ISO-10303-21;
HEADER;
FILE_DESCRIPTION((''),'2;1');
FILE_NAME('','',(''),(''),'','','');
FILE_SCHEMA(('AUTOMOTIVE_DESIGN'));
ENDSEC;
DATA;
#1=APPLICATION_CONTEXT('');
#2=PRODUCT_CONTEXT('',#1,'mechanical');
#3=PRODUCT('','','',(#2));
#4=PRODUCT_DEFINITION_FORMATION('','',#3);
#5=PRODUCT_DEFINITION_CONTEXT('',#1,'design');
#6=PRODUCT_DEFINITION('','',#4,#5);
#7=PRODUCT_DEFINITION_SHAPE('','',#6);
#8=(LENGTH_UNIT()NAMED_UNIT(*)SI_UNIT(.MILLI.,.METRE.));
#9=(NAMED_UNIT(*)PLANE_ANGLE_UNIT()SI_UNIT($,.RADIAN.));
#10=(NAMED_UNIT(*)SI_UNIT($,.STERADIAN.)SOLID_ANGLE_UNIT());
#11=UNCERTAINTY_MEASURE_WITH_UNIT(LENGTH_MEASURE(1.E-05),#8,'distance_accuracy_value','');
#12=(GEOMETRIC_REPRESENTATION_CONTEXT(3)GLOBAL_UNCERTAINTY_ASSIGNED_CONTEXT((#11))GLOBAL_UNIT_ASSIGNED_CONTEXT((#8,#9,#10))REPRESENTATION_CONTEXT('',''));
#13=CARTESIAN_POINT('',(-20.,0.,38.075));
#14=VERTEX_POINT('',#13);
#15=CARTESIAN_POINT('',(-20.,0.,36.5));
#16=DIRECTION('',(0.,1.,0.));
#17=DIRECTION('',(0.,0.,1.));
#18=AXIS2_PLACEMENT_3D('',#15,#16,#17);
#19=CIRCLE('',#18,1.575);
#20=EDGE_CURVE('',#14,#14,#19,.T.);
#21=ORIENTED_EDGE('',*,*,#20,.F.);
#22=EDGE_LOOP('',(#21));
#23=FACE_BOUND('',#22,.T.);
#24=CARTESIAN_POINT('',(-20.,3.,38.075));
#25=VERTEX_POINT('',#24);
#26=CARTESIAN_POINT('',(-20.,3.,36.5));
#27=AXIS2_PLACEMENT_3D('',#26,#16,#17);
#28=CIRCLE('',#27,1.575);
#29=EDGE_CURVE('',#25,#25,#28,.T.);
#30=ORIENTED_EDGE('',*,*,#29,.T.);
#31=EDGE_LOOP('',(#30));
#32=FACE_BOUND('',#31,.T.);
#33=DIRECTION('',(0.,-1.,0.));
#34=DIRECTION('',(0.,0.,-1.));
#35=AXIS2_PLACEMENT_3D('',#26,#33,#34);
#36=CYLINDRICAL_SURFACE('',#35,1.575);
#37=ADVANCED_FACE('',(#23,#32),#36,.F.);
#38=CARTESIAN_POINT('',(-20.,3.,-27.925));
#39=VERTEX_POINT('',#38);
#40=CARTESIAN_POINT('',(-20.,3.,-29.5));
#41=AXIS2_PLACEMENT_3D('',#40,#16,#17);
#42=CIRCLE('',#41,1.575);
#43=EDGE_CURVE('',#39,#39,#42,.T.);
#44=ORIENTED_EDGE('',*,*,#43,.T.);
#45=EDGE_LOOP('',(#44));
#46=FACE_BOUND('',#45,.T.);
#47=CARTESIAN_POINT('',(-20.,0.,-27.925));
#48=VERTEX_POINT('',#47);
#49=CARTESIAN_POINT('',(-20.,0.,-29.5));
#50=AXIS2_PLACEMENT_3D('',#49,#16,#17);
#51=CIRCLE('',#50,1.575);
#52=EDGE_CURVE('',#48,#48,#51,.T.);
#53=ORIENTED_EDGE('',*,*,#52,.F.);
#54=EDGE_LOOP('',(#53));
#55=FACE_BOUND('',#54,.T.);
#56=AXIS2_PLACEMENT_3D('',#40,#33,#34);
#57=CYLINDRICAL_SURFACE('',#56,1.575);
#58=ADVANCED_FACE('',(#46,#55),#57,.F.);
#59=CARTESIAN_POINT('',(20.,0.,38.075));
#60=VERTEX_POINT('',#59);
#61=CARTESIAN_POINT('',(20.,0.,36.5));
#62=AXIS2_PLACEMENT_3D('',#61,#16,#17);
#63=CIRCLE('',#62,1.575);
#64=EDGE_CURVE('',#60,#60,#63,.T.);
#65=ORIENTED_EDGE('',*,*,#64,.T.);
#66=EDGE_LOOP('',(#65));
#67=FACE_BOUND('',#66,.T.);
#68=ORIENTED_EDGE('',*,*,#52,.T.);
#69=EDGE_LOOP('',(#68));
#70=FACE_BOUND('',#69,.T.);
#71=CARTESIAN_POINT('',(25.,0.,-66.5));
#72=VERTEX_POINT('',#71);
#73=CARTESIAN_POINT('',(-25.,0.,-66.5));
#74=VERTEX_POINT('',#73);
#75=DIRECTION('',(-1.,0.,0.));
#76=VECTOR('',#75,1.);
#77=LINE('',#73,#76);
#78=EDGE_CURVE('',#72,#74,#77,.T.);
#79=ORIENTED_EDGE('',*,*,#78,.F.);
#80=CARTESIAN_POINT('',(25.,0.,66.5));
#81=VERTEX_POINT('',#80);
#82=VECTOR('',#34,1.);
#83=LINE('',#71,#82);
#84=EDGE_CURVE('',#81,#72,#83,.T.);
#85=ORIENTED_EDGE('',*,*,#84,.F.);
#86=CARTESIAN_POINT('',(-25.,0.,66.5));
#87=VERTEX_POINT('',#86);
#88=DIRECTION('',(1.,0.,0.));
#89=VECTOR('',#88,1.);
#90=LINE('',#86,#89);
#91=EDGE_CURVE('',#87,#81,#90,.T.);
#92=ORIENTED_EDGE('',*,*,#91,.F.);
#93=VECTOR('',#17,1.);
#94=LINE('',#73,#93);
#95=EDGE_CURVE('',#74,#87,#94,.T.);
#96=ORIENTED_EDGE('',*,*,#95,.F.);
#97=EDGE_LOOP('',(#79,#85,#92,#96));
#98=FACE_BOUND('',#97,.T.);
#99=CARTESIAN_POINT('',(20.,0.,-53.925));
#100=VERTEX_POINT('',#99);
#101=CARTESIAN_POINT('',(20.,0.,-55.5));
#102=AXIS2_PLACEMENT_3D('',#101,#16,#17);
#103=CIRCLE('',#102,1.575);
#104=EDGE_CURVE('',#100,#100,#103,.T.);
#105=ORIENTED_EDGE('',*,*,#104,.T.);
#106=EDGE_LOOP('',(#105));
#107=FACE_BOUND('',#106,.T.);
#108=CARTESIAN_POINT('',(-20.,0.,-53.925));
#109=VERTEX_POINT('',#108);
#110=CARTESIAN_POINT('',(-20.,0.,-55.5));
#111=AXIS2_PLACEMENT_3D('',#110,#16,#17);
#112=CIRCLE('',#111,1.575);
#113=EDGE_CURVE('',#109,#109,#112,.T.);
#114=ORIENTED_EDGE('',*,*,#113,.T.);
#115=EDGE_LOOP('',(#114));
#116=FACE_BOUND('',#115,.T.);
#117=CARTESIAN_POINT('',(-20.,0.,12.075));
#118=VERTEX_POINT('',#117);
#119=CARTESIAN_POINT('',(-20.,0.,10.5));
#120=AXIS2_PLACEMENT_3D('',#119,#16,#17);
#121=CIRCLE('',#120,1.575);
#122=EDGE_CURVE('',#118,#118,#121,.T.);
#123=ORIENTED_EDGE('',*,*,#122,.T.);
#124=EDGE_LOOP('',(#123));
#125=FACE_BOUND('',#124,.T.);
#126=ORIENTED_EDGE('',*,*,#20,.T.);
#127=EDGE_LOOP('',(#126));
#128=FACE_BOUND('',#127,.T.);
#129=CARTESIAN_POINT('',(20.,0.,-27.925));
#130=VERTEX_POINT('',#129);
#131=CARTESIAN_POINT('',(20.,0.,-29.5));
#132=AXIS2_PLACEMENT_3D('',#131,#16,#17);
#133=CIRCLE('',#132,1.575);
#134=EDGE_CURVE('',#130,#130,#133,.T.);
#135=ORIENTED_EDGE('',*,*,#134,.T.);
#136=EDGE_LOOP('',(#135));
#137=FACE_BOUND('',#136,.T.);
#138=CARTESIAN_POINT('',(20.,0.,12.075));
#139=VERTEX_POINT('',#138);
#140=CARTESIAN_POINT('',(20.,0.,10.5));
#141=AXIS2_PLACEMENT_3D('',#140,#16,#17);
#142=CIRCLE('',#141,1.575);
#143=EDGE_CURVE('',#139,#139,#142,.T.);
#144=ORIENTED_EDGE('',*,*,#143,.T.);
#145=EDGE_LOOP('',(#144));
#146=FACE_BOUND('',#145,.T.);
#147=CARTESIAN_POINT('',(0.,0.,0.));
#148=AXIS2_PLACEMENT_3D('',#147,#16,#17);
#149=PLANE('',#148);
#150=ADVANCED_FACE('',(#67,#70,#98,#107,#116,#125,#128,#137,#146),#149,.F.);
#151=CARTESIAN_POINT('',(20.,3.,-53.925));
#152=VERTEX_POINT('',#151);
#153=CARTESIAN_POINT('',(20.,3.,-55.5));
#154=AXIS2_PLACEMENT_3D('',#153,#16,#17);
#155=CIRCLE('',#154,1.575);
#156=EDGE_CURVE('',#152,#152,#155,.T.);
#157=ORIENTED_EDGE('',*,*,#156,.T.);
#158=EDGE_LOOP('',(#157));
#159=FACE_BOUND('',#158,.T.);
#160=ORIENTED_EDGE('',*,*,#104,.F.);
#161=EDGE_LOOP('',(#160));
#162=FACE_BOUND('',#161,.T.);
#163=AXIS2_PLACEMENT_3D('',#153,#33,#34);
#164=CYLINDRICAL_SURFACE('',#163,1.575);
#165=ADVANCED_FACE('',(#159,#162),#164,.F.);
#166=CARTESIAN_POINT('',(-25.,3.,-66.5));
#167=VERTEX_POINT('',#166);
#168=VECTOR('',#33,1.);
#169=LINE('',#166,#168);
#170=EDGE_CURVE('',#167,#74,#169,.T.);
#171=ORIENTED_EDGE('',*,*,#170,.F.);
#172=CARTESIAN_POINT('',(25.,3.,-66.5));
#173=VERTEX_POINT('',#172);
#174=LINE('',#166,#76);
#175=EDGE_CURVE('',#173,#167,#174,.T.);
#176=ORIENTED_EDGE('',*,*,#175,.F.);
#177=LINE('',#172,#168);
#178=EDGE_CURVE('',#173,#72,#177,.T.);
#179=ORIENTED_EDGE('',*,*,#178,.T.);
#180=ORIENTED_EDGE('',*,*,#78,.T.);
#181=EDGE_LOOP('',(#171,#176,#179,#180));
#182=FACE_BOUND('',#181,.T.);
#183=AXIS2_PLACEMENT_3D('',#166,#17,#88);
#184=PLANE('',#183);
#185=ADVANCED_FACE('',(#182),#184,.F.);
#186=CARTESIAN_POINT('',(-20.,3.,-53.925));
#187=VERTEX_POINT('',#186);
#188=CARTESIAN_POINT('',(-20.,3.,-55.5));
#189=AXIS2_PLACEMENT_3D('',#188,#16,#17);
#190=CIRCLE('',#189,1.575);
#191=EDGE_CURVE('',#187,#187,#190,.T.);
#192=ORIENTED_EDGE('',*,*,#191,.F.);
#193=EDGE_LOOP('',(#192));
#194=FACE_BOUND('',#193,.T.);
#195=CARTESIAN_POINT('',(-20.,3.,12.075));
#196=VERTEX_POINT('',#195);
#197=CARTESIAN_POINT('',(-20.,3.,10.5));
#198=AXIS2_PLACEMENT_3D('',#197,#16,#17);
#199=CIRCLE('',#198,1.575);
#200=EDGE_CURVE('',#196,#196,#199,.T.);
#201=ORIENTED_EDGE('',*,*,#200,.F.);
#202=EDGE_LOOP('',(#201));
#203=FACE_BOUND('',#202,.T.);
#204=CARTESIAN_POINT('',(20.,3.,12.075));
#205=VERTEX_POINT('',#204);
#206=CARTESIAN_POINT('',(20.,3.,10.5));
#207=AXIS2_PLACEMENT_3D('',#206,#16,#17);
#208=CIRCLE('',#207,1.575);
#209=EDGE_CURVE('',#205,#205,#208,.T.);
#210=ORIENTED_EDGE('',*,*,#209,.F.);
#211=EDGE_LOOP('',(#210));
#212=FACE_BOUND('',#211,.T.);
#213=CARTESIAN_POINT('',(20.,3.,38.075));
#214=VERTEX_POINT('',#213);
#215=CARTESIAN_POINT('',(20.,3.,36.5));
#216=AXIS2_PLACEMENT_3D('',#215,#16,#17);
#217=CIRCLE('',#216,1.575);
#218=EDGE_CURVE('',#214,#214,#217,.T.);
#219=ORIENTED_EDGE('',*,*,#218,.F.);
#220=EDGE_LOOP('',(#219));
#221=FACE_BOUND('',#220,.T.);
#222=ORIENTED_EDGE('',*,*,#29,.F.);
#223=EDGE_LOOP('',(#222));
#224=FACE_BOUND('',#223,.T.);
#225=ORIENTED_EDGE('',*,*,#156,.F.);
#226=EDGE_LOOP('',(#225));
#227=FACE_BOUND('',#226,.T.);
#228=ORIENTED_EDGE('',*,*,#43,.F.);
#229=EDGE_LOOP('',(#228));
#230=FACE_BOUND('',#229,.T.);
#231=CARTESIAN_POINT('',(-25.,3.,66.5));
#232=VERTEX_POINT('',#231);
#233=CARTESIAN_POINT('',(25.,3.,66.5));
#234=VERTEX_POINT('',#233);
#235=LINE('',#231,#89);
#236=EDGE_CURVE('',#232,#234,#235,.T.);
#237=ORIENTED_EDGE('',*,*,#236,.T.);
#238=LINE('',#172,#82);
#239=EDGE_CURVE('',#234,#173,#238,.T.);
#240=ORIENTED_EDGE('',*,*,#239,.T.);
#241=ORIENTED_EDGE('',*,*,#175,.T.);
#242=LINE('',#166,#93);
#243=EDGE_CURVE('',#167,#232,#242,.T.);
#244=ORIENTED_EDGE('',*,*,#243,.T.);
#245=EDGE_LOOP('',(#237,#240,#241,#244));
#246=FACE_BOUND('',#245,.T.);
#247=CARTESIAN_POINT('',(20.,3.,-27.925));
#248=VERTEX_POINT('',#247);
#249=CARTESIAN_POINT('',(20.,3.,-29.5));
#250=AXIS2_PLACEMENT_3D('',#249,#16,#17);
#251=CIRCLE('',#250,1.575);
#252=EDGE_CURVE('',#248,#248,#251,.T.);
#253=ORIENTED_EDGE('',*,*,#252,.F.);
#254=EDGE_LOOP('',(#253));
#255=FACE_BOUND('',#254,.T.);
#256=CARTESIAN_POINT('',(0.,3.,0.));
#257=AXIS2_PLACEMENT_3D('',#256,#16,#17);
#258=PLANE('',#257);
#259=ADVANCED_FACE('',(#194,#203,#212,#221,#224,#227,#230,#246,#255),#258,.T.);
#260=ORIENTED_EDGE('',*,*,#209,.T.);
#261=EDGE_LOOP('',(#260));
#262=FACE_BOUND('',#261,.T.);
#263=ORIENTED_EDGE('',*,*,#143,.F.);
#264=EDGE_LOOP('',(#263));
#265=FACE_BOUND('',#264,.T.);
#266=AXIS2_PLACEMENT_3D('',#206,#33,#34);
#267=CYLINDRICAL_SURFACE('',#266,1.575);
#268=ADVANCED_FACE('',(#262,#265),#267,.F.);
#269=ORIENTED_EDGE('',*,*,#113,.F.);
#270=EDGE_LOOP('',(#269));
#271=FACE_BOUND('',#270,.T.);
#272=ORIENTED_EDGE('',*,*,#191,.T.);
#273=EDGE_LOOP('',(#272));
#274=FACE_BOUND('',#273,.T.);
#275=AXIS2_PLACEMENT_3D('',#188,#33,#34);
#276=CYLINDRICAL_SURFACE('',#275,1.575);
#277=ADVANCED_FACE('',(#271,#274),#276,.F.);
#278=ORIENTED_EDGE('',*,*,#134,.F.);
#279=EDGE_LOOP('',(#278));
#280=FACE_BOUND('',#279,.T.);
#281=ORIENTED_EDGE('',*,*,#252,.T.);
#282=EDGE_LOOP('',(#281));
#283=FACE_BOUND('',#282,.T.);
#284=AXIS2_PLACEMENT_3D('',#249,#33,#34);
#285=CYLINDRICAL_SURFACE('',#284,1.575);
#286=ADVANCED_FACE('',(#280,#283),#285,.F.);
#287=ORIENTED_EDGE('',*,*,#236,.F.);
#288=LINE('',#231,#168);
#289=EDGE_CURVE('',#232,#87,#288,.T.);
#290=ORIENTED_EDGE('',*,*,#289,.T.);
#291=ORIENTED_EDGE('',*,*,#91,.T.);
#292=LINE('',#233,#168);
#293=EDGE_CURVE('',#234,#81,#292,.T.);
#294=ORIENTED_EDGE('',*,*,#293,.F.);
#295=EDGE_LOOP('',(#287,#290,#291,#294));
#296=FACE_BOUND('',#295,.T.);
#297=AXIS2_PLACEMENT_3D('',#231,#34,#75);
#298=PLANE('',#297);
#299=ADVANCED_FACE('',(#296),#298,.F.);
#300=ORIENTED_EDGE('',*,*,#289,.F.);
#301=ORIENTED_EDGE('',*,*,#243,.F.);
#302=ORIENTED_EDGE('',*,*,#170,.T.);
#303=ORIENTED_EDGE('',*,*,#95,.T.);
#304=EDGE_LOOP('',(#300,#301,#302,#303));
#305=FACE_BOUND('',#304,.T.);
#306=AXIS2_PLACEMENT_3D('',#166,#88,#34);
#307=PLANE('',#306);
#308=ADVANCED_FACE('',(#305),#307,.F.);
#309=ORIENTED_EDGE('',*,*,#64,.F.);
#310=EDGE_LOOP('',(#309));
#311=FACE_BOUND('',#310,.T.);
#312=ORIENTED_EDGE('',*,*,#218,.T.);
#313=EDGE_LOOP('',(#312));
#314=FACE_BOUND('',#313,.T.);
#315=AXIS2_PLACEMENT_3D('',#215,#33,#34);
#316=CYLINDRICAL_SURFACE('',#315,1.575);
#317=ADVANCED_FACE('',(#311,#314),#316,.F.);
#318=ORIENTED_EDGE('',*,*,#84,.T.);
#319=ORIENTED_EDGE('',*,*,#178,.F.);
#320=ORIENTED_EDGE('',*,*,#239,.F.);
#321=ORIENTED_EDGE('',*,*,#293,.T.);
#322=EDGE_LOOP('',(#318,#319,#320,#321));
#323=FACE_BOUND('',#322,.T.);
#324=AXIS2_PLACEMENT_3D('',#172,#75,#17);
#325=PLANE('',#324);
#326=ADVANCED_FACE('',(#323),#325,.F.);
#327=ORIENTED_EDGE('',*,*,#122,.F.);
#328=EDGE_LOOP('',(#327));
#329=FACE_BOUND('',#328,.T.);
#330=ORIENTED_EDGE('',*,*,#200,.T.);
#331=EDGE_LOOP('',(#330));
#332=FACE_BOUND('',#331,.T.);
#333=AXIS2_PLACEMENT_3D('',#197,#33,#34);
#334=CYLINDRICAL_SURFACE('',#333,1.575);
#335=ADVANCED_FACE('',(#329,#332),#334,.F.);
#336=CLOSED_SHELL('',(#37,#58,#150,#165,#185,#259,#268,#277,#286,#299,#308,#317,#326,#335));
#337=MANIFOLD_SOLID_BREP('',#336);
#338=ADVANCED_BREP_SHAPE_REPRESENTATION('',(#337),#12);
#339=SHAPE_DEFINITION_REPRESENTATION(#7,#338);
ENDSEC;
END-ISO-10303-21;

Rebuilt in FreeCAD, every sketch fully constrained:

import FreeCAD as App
import Part
import Sketcher
from FreeCAD import Vector

doc = App.newDocument("Part")
body = doc.addObject("PartDesign::Body", "Body")

sketch1 = body.newObject("Sketcher::SketchObject", "Sketch")
sketch1.AttachmentSupport = (doc.getObject("XZ_Plane"), [""])
sketch1.MapMode = "FlatFace"
sketch1.addGeometry(Part.LineSegment(Vector(-25, -66.5, 0), Vector(-25, 66.5, 0)), False)
sketch1.addGeometry(Part.LineSegment(Vector(-25, 66.5, 0), Vector(25, 66.5, 0)), False)
sketch1.addGeometry(Part.LineSegment(Vector(25, 66.5, 0), Vector(25, -66.5, 0)), False)
sketch1.addGeometry(Part.LineSegment(Vector(25, -66.5, 0), Vector(-25, -66.5, 0)), False)
sketch1.addGeometry(Part.Circle(Vector(-20, 36.5, 0), Vector(0, 0, 1), 1.6), False)
sketch1.addGeometry(Part.Circle(Vector(-20, 10.5, 0), Vector(0, 0, 1), 1.6), False)
sketch1.addGeometry(Part.Circle(Vector(20, 36.5, 0), Vector(0, 0, 1), 1.6), False)
sketch1.addGeometry(Part.Circle(Vector(20, 10.5, 0), Vector(0, 0, 1), 1.6), False)
sketch1.addGeometry(Part.Circle(Vector(-20, -29.5, 0), Vector(0, 0, 1), 1.6), False)
sketch1.addGeometry(Part.Circle(Vector(-20, -55.5, 0), Vector(0, 0, 1), 1.6), False)
sketch1.addGeometry(Part.Circle(Vector(20, -29.5, 0), Vector(0, 0, 1), 1.6), False)
sketch1.addGeometry(Part.Circle(Vector(20, -55.5, 0), Vector(0, 0, 1), 1.6), False)
sketch1.addConstraint(Sketcher.Constraint("Coincident", 0, 2, 1, 1))
sketch1.addConstraint(Sketcher.Constraint("Coincident", 1, 2, 2, 1))
sketch1.addConstraint(Sketcher.Constraint("Coincident", 2, 2, 3, 1))
sketch1.addConstraint(Sketcher.Constraint("Coincident", 3, 2, 0, 1))
sketch1.addConstraint(Sketcher.Constraint("Vertical", 0))
sketch1.addConstraint(Sketcher.Constraint("Horizontal", 1))
sketch1.addConstraint(Sketcher.Constraint("Vertical", 2))
sketch1.addConstraint(Sketcher.Constraint("Horizontal", 3))
sketch1.addConstraint(Sketcher.Constraint("Equal", 4, 5))
sketch1.addConstraint(Sketcher.Constraint("Equal", 5, 6))
sketch1.addConstraint(Sketcher.Constraint("Equal", 6, 7))
sketch1.addConstraint(Sketcher.Constraint("Equal", 7, 8))
sketch1.addConstraint(Sketcher.Constraint("Equal", 8, 9))
sketch1.addConstraint(Sketcher.Constraint("Equal", 9, 10))
sketch1.addConstraint(Sketcher.Constraint("Equal", 10, 11))
sketch1.addConstraint(Sketcher.Constraint("Symmetric", 0, 2, 2, 2, -1, 1))
sketch1.addConstraint(Sketcher.Constraint("Symmetric", 4, 3, 6, 3, -2))
sketch1.addConstraint(Sketcher.Constraint("Symmetric", 5, 3, 7, 3, -2))
sketch1.addConstraint(Sketcher.Constraint("Symmetric", 8, 3, 10, 3, -2))
sketch1.addConstraint(Sketcher.Constraint("Symmetric", 9, 3, 11, 3, -2))
sketch1.addConstraint(Sketcher.Constraint("Vertical", 4, 3, 5, 3))
sketch1.addConstraint(Sketcher.Constraint("Vertical", 5, 3, 8, 3))
sketch1.addConstraint(Sketcher.Constraint("Vertical", 8, 3, 9, 3))
sketch1.addConstraint(Sketcher.Constraint("Diameter", 4, 3.15))
sketch1.addConstraint(Sketcher.Constraint("DistanceX", 1, 1, 1, 2, 50.0))
sketch1.addConstraint(Sketcher.Constraint("DistanceY", 0, 1, 0, 2, 133.0))
sketch1.addConstraint(Sketcher.Constraint("DistanceX", 4, 3, -1, 1, 20.0))
sketch1.addConstraint(Sketcher.Constraint("DistanceY", 5, 3, 4, 3, 26.0))
sketch1.addConstraint(Sketcher.Constraint("DistanceY", 8, 3, 5, 3, 40.0))
sketch1.addConstraint(Sketcher.Constraint("DistanceY", 9, 3, 8, 3, 26.0))
sketch1.addConstraint(Sketcher.Constraint("DistanceY", 4, 3, 0, 2, 30.0))
pad1 = body.newObject("PartDesign::Pad", "Pad")
pad1.Profile = sketch1
pad1.Length = 3
pad1.Reversed = True

doc.recompute()
